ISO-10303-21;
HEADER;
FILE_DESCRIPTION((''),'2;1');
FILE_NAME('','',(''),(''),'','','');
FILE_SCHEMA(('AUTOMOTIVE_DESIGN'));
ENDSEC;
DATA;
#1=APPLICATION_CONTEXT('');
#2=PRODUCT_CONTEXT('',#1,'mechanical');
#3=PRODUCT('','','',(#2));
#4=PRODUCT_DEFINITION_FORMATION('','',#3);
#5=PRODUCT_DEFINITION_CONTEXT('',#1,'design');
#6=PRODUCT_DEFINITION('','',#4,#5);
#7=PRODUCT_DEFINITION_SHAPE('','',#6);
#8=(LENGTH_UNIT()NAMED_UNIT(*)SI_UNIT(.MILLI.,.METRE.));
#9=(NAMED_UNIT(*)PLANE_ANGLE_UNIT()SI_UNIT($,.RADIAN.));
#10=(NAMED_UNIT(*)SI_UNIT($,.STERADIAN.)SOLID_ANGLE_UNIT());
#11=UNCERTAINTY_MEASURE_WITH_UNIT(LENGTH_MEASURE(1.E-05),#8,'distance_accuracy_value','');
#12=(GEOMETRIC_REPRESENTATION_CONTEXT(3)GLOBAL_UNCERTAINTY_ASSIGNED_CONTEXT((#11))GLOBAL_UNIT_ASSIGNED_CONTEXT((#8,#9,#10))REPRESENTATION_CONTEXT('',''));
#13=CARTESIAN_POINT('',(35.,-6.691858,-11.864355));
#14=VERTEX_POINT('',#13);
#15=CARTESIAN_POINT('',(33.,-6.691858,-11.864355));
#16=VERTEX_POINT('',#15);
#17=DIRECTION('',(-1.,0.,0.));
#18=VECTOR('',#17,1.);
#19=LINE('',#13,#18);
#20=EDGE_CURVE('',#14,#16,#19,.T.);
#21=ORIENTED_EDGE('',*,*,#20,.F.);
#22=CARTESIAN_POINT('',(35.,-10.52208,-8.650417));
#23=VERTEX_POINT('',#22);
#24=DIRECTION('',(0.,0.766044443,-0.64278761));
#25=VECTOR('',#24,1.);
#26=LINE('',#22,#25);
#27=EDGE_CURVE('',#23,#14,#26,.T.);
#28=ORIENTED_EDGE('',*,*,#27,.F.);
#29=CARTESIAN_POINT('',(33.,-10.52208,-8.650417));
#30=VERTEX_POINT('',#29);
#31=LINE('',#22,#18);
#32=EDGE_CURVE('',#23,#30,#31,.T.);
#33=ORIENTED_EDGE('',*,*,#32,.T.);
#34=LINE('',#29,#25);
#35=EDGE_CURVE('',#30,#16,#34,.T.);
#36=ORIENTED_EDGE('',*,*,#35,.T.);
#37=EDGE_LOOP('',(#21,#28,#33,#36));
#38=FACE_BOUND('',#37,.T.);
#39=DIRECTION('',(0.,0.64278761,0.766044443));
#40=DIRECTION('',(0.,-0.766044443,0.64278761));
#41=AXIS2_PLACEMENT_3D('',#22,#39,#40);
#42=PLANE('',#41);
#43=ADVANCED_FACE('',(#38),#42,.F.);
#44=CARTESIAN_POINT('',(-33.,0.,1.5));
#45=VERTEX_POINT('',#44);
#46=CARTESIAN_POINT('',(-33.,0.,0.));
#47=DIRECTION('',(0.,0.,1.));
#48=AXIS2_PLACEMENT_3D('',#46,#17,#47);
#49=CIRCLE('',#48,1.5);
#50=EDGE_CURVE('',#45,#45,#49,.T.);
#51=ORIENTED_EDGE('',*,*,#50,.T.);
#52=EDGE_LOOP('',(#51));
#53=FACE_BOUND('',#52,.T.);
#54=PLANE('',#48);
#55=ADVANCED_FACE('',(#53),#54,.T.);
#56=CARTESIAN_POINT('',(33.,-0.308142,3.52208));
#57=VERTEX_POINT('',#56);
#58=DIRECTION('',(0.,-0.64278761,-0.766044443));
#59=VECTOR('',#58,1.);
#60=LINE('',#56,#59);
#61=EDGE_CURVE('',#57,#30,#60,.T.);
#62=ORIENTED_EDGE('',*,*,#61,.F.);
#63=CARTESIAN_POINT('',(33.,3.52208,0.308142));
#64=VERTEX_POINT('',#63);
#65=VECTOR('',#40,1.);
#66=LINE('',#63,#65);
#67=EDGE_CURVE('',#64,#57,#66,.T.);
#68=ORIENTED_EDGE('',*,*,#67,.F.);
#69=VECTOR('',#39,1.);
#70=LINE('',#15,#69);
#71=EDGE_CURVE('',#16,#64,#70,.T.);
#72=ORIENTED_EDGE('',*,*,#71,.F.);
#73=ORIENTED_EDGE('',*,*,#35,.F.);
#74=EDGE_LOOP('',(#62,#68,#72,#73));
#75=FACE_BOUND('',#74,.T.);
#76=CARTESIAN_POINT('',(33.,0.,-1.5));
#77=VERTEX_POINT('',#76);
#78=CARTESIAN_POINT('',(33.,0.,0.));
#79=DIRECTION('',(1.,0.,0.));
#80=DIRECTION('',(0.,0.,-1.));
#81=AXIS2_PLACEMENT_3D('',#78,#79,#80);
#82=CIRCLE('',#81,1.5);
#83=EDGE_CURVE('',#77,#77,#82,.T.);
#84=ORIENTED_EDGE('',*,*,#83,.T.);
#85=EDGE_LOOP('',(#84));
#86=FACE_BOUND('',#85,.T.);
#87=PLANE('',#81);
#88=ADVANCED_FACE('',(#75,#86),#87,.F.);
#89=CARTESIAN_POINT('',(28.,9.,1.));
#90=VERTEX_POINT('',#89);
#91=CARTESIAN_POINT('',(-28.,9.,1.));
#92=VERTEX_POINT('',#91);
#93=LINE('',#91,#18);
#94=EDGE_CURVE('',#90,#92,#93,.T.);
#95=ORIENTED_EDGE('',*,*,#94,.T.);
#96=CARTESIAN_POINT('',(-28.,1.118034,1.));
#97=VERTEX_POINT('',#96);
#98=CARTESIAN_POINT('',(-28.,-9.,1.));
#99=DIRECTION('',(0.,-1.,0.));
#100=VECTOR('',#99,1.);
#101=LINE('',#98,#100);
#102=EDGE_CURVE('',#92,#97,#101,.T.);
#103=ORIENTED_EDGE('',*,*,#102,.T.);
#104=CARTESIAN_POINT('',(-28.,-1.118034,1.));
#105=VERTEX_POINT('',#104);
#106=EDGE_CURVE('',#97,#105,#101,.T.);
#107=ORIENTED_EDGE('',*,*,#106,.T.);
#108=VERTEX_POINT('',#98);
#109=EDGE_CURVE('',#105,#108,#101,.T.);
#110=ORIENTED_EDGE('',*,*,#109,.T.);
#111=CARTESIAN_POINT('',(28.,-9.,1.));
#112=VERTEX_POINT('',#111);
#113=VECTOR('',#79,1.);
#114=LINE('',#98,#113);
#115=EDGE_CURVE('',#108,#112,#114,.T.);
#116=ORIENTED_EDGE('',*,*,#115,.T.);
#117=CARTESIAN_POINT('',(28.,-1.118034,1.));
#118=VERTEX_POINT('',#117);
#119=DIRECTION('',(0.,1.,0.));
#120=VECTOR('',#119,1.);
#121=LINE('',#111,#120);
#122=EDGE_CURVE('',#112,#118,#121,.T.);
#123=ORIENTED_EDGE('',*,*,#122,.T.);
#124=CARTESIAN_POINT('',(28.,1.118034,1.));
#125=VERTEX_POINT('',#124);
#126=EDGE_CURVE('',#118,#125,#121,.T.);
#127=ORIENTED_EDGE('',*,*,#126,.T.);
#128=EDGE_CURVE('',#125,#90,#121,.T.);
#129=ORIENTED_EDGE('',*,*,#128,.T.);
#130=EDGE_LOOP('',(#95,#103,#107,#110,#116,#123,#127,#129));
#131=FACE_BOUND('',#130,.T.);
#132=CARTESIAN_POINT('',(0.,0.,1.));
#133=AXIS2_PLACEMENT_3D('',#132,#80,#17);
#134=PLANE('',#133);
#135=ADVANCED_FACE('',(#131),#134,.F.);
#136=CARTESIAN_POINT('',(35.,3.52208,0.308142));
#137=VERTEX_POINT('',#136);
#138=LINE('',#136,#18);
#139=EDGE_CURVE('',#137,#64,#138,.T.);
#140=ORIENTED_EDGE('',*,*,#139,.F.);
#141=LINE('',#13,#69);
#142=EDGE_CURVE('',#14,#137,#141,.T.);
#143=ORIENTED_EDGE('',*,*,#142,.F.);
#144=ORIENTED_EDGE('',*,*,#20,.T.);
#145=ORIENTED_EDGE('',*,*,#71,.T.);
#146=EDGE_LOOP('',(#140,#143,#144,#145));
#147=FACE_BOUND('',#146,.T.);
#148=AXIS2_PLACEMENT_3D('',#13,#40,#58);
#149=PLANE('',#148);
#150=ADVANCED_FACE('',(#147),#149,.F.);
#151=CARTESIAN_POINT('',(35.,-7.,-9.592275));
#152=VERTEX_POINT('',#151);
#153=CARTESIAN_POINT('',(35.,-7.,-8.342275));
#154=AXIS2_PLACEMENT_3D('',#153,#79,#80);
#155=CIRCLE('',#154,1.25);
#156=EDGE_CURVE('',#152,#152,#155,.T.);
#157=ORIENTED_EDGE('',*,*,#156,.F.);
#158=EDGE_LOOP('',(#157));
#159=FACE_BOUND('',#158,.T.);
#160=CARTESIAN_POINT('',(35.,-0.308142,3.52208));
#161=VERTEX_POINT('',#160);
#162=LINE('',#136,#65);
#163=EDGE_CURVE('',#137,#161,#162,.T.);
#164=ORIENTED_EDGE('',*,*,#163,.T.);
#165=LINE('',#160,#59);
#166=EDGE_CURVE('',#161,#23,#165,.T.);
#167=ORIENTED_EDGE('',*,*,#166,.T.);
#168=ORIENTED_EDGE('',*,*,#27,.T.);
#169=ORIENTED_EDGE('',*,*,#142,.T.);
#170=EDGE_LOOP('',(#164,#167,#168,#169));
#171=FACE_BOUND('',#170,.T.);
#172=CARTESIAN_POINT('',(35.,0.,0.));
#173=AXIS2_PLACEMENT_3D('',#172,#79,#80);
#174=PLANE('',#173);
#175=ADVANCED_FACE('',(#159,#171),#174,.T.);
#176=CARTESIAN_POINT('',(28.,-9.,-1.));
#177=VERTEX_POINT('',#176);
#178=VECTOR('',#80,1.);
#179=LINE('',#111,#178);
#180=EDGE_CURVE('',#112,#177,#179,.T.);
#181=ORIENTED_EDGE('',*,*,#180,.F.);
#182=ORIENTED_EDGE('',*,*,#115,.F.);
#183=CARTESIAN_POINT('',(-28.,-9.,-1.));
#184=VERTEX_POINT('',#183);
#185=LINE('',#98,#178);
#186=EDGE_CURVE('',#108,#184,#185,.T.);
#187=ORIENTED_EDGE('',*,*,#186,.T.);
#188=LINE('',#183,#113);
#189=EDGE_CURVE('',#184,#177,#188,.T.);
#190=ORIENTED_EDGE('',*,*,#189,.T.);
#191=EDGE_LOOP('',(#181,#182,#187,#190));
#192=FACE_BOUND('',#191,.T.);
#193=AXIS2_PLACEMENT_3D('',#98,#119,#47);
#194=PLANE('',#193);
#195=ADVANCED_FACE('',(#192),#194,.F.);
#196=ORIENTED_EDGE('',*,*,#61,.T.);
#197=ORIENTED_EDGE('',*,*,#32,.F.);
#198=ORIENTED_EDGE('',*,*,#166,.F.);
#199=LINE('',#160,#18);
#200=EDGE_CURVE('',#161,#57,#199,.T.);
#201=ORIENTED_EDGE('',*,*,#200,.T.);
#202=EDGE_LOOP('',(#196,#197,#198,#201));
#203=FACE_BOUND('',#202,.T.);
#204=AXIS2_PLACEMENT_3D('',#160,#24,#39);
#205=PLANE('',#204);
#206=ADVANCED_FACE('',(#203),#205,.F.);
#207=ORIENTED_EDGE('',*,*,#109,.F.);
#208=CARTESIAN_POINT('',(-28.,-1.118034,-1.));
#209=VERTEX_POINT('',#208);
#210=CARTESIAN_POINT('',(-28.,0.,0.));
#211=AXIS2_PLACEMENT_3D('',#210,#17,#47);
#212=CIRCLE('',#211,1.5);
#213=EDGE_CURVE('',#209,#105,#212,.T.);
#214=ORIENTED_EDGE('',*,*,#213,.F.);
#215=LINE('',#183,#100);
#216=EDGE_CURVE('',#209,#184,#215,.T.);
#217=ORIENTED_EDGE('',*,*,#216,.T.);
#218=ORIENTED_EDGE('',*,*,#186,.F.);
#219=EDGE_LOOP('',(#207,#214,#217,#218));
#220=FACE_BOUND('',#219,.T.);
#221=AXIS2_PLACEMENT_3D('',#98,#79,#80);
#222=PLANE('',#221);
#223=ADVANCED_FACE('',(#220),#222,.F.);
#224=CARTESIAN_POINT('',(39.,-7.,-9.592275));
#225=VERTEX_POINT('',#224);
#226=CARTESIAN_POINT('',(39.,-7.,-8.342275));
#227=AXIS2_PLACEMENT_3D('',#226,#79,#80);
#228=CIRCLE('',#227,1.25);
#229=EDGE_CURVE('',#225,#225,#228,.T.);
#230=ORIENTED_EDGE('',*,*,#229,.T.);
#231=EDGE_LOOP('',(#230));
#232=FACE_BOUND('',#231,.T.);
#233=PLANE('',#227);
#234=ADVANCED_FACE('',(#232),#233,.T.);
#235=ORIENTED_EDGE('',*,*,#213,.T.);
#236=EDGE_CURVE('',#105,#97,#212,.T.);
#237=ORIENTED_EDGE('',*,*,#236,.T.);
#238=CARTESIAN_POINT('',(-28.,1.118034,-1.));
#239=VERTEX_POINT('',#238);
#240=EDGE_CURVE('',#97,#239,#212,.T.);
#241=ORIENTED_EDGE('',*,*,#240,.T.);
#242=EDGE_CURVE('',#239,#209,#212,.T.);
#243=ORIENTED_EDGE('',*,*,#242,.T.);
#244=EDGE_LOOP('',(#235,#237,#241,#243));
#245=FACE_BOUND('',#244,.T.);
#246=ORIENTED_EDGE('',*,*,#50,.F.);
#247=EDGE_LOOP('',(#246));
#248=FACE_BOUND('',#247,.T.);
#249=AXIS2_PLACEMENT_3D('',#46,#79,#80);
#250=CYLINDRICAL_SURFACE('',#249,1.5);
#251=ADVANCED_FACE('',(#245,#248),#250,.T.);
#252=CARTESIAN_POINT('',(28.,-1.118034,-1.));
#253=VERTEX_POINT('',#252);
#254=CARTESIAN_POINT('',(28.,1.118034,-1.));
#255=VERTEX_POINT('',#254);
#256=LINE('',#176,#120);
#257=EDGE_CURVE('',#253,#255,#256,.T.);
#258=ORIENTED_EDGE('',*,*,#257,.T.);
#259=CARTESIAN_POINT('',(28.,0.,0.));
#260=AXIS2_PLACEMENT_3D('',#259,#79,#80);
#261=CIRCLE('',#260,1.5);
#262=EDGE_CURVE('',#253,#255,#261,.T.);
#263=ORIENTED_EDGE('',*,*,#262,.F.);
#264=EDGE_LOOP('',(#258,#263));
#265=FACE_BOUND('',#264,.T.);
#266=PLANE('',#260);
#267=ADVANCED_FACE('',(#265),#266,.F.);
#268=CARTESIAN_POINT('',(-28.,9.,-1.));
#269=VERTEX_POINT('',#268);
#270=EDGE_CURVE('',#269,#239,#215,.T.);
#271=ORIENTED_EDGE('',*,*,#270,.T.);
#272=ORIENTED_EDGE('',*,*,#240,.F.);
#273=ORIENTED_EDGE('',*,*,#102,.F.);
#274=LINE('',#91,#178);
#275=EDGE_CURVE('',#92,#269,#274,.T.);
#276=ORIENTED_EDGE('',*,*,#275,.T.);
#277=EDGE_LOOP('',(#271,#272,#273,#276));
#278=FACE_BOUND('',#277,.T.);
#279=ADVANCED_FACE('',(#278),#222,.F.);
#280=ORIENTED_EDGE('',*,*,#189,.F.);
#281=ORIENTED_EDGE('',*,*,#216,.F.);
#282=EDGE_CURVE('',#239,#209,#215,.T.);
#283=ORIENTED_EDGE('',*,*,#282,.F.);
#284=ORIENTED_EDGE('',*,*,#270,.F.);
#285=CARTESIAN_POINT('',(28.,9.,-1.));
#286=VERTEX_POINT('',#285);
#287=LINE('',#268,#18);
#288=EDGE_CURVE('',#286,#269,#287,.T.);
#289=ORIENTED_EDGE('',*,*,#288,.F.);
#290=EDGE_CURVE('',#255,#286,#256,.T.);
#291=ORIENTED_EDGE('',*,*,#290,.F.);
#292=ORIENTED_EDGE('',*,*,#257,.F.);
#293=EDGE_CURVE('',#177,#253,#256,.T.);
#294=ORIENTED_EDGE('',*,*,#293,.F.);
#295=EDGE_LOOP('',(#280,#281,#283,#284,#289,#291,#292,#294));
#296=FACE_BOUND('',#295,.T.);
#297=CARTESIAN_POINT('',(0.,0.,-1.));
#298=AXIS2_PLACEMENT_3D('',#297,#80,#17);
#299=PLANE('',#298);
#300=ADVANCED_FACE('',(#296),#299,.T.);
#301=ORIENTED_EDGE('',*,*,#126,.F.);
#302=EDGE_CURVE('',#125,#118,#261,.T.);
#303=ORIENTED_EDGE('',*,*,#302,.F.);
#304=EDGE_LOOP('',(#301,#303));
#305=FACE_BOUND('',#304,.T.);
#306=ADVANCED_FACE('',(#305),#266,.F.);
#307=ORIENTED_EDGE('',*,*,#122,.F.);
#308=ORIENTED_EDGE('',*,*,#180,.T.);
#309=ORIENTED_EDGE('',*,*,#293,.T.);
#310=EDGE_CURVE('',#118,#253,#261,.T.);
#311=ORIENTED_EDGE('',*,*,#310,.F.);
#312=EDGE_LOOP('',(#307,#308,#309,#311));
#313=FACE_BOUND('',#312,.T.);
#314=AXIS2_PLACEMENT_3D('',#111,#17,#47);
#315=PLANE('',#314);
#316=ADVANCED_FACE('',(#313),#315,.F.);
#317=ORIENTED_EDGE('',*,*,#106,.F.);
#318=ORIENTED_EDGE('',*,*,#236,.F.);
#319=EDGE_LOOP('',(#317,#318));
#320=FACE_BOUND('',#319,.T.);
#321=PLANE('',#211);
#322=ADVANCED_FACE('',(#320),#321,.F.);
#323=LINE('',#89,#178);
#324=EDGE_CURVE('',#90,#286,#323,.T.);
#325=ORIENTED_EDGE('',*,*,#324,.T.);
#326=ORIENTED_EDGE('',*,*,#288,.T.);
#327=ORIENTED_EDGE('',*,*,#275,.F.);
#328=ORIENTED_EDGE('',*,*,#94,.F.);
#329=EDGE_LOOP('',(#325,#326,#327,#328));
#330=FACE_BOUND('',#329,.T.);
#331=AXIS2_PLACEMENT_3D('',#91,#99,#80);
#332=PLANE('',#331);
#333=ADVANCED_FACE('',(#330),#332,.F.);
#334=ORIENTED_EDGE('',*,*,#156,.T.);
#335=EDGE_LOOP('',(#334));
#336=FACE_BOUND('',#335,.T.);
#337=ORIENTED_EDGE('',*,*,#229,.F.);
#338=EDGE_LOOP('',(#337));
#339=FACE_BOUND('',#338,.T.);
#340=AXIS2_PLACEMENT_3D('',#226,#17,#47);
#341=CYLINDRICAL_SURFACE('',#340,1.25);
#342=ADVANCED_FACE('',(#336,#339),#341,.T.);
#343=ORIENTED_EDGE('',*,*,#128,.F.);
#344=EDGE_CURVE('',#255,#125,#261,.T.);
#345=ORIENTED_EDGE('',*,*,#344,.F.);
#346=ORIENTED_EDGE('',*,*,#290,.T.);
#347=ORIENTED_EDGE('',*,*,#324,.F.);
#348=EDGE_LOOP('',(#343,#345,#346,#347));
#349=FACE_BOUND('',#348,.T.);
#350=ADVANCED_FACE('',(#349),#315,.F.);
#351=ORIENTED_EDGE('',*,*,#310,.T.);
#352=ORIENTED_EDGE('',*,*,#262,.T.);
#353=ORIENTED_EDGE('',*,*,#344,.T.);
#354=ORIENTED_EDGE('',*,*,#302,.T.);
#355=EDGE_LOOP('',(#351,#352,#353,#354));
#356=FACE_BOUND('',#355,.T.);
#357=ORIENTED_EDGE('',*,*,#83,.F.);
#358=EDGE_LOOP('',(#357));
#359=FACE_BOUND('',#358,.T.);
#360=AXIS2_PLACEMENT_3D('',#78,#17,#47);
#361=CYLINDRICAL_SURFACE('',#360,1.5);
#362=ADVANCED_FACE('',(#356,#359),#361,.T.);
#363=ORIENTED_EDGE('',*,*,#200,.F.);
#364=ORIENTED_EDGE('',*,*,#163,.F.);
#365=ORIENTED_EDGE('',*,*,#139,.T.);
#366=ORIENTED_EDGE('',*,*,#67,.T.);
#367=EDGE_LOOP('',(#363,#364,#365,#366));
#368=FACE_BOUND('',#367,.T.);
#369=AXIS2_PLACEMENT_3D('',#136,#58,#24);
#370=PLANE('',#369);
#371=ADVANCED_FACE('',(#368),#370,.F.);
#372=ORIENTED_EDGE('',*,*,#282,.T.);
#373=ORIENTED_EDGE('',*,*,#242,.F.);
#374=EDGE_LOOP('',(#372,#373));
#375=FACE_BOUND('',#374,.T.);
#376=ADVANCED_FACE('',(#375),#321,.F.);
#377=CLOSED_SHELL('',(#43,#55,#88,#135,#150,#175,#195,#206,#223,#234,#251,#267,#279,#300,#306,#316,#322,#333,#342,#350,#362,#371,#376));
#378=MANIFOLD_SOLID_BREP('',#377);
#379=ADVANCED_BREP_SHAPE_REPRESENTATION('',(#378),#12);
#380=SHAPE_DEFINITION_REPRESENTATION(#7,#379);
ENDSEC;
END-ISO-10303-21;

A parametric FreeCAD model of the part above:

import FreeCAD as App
import Part
import Sketcher
from FreeCAD import Vector
Q = App.Units.Quantity

doc = App.newDocument("Part")
params = doc.addObject("Spreadsheet::Sheet", "Params")
for row, (alias, value) in enumerate([
    ("sketch1_width", "56 mm"),
    ("sketch1_height", "18 mm"),
    ("pad1_length", "2 mm"),
    ("sketch2_diameter", "3 mm"),
    ("pad2_length", "5 mm"),
    ("sketch3_diameter", "3 mm"),
    ("pad3_length", "5 mm"),
    ("sketch4_length", "5 mm"),
    ("pad4_length", "2 mm"),
    ("sketch5_diameter", "2.5 mm"),
    ("pad5_length", "4 mm"),
], start=1):
    params.set(f"A{row}", alias)
    params.set(f"B{row}", "=" + value)
    params.setAlias(f"B{row}", alias)

body = doc.addObject("PartDesign::Body", "Body")

# Sketch on XY plane
sketch1 = body.newObject("Sketcher::SketchObject", "Sketch")
sketch1.AttachmentSupport = (doc.getObject("XY_Plane"), [""])
sketch1.MapMode = "FlatFace"
sketch1.addGeometry([
    Part.LineSegment(Vector(-28, 9, 0), Vector(-28, -9, 0)),
    Part.LineSegment(Vector(-28, -9, 0), Vector(28, -9, 0)),
    Part.LineSegment(Vector(28, -9, 0), Vector(28, 9, 0)),
    Part.LineSegment(Vector(28, 9, 0), Vector(-28, 9, 0)),
], False)
sketch1.addConstraint([
    Sketcher.Constraint("Coincident", 0, 2, 1, 1),
    Sketcher.Constraint("Coincident", 1, 2, 2, 1),
    Sketcher.Constraint("Coincident", 2, 2, 3, 1),
    Sketcher.Constraint("Coincident", 3, 2, 0, 1),
    Sketcher.Constraint("Vertical", 0),
    Sketcher.Constraint("Horizontal", 1),
    Sketcher.Constraint("Vertical", 2),
    Sketcher.Constraint("Horizontal", 3),
    Sketcher.Constraint("Symmetric", 0, 2, 2, 2, -1, 1),
    Sketcher.Constraint("DistanceX", 1, 1, 1, 2, 56.0),
    Sketcher.Constraint("DistanceY", 0, 2, 0, 1, 18.0),
])
sketch1.setExpression("Constraints[9]", "Params.sketch1_width")
sketch1.setExpression("Constraints[10]", "Params.sketch1_height")
pad1 = body.newObject("PartDesign::Pad", "Pad")
pad1.Profile = sketch1
pad1.setExpression("Length", "Params.pad1_length")
pad1.Midplane = True

# Sketch on YZ plane
sketch2 = body.newObject("Sketcher::SketchObject", "Sketch001")
sketch2.AttachmentSupport = (doc.getObject("YZ_Plane"), [""])
sketch2.MapMode = "FlatFace"
sketch2.AttachmentOffset = App.Placement(Vector(0, 0, -28), App.Rotation())
sketch2.addGeometry(Part.Circle(Vector(0, 0, 0), Vector(0, 0, 1), 1.5), False)
sketch2.addConstraint([
    Sketcher.Constraint("Coincident", 0, 3, -1, 1),
    Sketcher.Constraint("Diameter", 0, 3.0),
])
sketch2.setExpression("Constraints[1]", "Params.sketch2_diameter")
pad2 = body.newObject("PartDesign::Pad", "Pad001")
pad2.Profile = sketch2
pad2.setExpression("Length", "Params.pad2_length")
pad2.Reversed = True

# Sketch on YZ plane
sketch3 = body.newObject("Sketcher::SketchObject", "Sketch002")
sketch3.AttachmentSupport = (doc.getObject("YZ_Plane"), [""])
sketch3.MapMode = "FlatFace"
sketch3.AttachmentOffset = App.Placement(Vector(0, 0, 33), App.Rotation())
sketch3.addGeometry(Part.Circle(Vector(0, 0, 0), Vector(0, 0, 1), 1.5), False)
sketch3.addConstraint([
    Sketcher.Constraint("Coincident", 0, 3, -1, 1),
    Sketcher.Constraint("Diameter", 0, 3.0),
])
sketch3.setExpression("Constraints[1]", "Params.sketch3_diameter")
pad3 = body.newObject("PartDesign::Pad", "Pad002")
pad3.Profile = sketch3
pad3.setExpression("Length", "Params.pad3_length")
pad3.Reversed = True

# Sketch on YZ plane
sketch4 = body.newObject("Sketcher::SketchObject", "Sketch003")
sketch4.AttachmentSupport = (doc.getObject("YZ_Plane"), [""])
sketch4.MapMode = "FlatFace"
sketch4.AttachmentOffset = App.Placement(Vector(0, 0, 33), App.Rotation())
sketch4.addGeometry([
    Part.LineSegment(Vector(-0.308142, 3.52208, 0), Vector(-10.52208, -8.650417, 0)),
    Part.LineSegment(Vector(-10.52208, -8.650417, 0), Vector(-6.691858, -11.864355, 0)),
    Part.LineSegment(Vector(-6.691858, -11.864355, 0), Vector(3.52208, 0.308142, 0)),
    Part.LineSegment(Vector(3.52208, 0.308142, 0), Vector(-0.308142, 3.52208, 0)),
], False)
sketch4.addConstraint([
    Sketcher.Constraint("Coincident", 0, 2, 1, 1),
    Sketcher.Constraint("Coincident", 1, 2, 2, 1),
    Sketcher.Constraint("Coincident", 2, 2, 3, 1),
    Sketcher.Constraint("Coincident", 3, 2, 0, 1),
    Sketcher.Constraint("Perpendicular", 0, 1),
    Sketcher.Constraint("Perpendicular", 1, 2),
    Sketcher.Constraint("Perpendicular", 2, 3),
    Sketcher.Constraint("Angle", 0, Q("-130 deg")),
    Sketcher.Constraint("Distance", 1, 5.0),
    Sketcher.Constraint("DistanceX", 0, 2, -1, 1, 10.52208),
    Sketcher.Constraint("DistanceX", -1, 1, 2, 2, 3.52208),
    Sketcher.Constraint("DistanceY", -1, 1, 3, 2, 3.52208),
])
sketch4.setExpression("Constraints[8]", "Params.sketch4_length")
pad4 = body.newObject("PartDesign::Pad", "Pad003")
pad4.Profile = sketch4
pad4.setExpression("Length", "Params.pad4_length")

# Sketch on YZ plane
sketch5 = body.newObject("Sketcher::SketchObject", "Sketch004")
sketch5.AttachmentSupport = (doc.getObject("YZ_Plane"), [""])
sketch5.MapMode = "FlatFace"
sketch5.AttachmentOffset = App.Placement(Vector(0, 0, 35), App.Rotation())
sketch5.addGeometry(Part.Circle(Vector(-7, -8.342275, 0), Vector(0, 0, 1), 1.25), False)
sketch5.addConstraint([
    Sketcher.Constraint("Diameter", 0, 2.5),
    Sketcher.Constraint("DistanceX", 0, 3, -1, 1, 7.0),
    Sketcher.Constraint("DistanceY", 0, 3, -1, 1, 8.342275),
])
sketch5.setExpression("Constraints[0]", "Params.sketch5_diameter")
pad5 = body.newObject("PartDesign::Pad", "Pad004")
pad5.Profile = sketch5
pad5.setExpression("Length", "Params.pad5_length")

doc.recompute()
